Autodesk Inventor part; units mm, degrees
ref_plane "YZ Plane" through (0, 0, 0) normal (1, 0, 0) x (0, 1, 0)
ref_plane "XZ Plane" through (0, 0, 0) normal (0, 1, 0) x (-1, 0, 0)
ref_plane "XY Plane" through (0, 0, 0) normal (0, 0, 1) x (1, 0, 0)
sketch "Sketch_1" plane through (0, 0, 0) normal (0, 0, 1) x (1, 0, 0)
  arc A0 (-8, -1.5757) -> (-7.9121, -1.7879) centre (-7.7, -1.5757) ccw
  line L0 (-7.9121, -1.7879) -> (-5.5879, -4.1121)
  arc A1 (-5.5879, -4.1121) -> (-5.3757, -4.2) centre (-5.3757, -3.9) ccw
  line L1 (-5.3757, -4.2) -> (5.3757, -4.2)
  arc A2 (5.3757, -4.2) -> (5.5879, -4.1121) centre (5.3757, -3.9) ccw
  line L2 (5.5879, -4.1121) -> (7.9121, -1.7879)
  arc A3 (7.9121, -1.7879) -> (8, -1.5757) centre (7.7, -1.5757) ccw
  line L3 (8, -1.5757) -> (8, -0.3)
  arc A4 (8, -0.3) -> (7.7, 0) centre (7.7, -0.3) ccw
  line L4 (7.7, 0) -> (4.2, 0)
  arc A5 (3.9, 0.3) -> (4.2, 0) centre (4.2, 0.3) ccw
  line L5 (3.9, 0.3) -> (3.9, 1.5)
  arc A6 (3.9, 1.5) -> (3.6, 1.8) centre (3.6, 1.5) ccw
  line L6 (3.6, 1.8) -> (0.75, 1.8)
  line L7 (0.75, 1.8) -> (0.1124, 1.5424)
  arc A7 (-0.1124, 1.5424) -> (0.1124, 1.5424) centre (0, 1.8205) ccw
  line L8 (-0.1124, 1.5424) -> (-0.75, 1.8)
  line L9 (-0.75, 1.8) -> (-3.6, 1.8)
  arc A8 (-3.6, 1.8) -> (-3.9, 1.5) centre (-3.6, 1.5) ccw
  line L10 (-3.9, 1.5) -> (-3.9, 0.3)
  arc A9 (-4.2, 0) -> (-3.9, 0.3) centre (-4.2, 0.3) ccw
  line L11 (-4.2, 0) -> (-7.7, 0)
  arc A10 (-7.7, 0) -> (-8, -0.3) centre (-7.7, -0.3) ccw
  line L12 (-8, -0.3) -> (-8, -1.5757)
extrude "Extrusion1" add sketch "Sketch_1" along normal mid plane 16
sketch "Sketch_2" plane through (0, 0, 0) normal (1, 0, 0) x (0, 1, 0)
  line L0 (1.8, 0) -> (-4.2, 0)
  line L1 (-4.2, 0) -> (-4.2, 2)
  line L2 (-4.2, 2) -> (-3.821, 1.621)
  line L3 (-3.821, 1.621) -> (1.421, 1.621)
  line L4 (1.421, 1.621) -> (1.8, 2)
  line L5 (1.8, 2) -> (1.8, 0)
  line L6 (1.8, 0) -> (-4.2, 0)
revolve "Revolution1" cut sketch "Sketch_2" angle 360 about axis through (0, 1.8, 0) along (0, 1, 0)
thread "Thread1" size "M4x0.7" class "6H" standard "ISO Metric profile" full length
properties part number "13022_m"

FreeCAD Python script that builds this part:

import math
import FreeCAD as App
import Part
import Sketcher

V = App.Vector
Q = App.Units.Quantity

doc = App.newDocument("Part")
body = doc.addObject("PartDesign::Body", "Body")

# Sketch on XY plane
sketch1 = body.newObject("Sketcher::SketchObject", "Sketch")
sketch1.AttachmentSupport = (doc.getObject("XY_Plane"), [""])
sketch1.MapMode = "FlatFace"
sketch1.addGeometry(Part.LineSegment(V(-8, -0.3, 0), V(-8, -1.58, 0)), False)
sketch1.addGeometry(Part.ArcOfCircle(Part.Circle(V(-7.7, -1.58, 0), V(0, 0, 1), 0.3), math.radians(180), math.radians(225)), False)
sketch1.addGeometry(Part.LineSegment(V(-7.91, -1.79, 0), V(-5.59, -4.11, 0)), False)
sketch1.addGeometry(Part.ArcOfCircle(Part.Circle(V(-5.38, -3.9, 0), V(0, 0, 1), 0.3), math.radians(-135), math.radians(-90)), False)
sketch1.addGeometry(Part.LineSegment(V(-5.38, -4.2, 0), V(5.38, -4.2, 0)), False)
sketch1.addGeometry(Part.ArcOfCircle(Part.Circle(V(5.38, -3.9, 0), V(0, 0, 1), 0.3), math.radians(-90), math.radians(-45)), False)
sketch1.addGeometry(Part.LineSegment(V(5.59, -4.11, 0), V(7.91, -1.79, 0)), False)
sketch1.addGeometry(Part.ArcOfCircle(Part.Circle(V(7.7, -1.58, 0), V(0, 0, 1), 0.3), math.radians(-45), math.radians(0)), False)
sketch1.addGeometry(Part.LineSegment(V(8, -1.58, 0), V(8, -0.3, 0)), False)
sketch1.addGeometry(Part.ArcOfCircle(Part.Circle(V(7.7, -0.3, 0), V(0, 0, 1), 0.3), math.radians(0), math.radians(90)), False)
sketch1.addGeometry(Part.LineSegment(V(7.7, 0, 0), V(4.2, 0, 0)), False)
sketch1.addGeometry(Part.ArcOfCircle(Part.Circle(V(4.2, 0.3, 0), V(0, 0, 1), 0.3), math.radians(180), math.radians(270)), False)
sketch1.addGeometry(Part.LineSegment(V(3.9, 0.3, 0), V(3.9, 1.5, 0)), False)
sketch1.addGeometry(Part.ArcOfCircle(Part.Circle(V(3.6, 1.5, 0), V(0, 0, 1), 0.3), math.radians(0), math.radians(90)), False)
sketch1.addGeometry(Part.LineSegment(V(3.6, 1.8, 0), V(0.75, 1.8, 0)), False)
sketch1.addGeometry(Part.LineSegment(V(0.75, 1.8, 0), V(0.11, 1.54, 0)), False)
sketch1.addGeometry(Part.ArcOfCircle(Part.Circle(V(0, 1.82, 0), V(0, 0, 1), 0.3), math.radians(-112), math.radians(-68)), False)
sketch1.addGeometry(Part.LineSegment(V(-0.11, 1.54, 0), V(-0.75, 1.8, 0)), False)
sketch1.addGeometry(Part.LineSegment(V(-0.75, 1.8, 0), V(-3.6, 1.8, 0)), False)
sketch1.addGeometry(Part.ArcOfCircle(Part.Circle(V(-3.6, 1.5, 0), V(0, 0, 1), 0.3), math.radians(90), math.radians(180)), False)
sketch1.addGeometry(Part.LineSegment(V(-3.9, 1.5, 0), V(-3.9, 0.3, 0)), False)
sketch1.addGeometry(Part.ArcOfCircle(Part.Circle(V(-4.2, 0.3, 0), V(0, 0, 1), 0.3), math.radians(-90), math.radians(0)), False)
sketch1.addGeometry(Part.LineSegment(V(-4.2, 0, 0), V(-7.7, 0, 0)), False)
sketch1.addGeometry(Part.ArcOfCircle(Part.Circle(V(-7.7, -0.3, 0), V(0, 0, 1), 0.3), math.radians(90), math.radians(180)), False)
sketch1.addConstraint(Sketcher.Constraint("Tangent", 0, 2, 1, 1))
sketch1.addConstraint(Sketcher.Constraint("Tangent", 1, 2, 2, 1))
sketch1.addConstraint(Sketcher.Constraint("Tangent", 2, 2, 3, 1))
sketch1.addConstraint(Sketcher.Constraint("Tangent", 3, 2, 4, 1))
sketch1.addConstraint(Sketcher.Constraint("Tangent", 4, 2, 5, 1))
sketch1.addConstraint(Sketcher.Constraint("Tangent", 5, 2, 6, 1))
sketch1.addConstraint(Sketcher.Constraint("Tangent", 6, 2, 7, 1))
sketch1.addConstraint(Sketcher.Constraint("Tangent", 7, 2, 8, 1))
sketch1.addConstraint(Sketcher.Constraint("Tangent", 8, 2, 9, 1))
sketch1.addConstraint(Sketcher.Constraint("Tangent", 9, 2, 10, 1))
sketch1.addConstraint(Sketcher.Constraint("Tangent", 10, 2, 11, 2))
sketch1.addConstraint(Sketcher.Constraint("Tangent", 11, 1, 12, 1))
sketch1.addConstraint(Sketcher.Constraint("Tangent", 12, 2, 13, 1))
sketch1.addConstraint(Sketcher.Constraint("Tangent", 13, 2, 14, 1))
sketch1.addConstraint(Sketcher.Constraint("Coincident", 14, 2, 15, 1))
sketch1.addConstraint(Sketcher.Constraint("Tangent", 15, 2, 16, 2))
sketch1.addConstraint(Sketcher.Constraint("Tangent", 16, 1, 17, 1))
sketch1.addConstraint(Sketcher.Constraint("Coincident", 17, 2, 18, 1))
sketch1.addConstraint(Sketcher.Constraint("Tangent", 18, 2, 19, 1))
sketch1.addConstraint(Sketcher.Constraint("Tangent", 19, 2, 20, 1))
sketch1.addConstraint(Sketcher.Constraint("Tangent", 20, 2, 21, 2))
sketch1.addConstraint(Sketcher.Constraint("Tangent", 21, 1, 22, 1))
sketch1.addConstraint(Sketcher.Constraint("Tangent", 22, 2, 23, 1))
sketch1.addConstraint(Sketcher.Constraint("Tangent", 23, 2, 0, 1))
sketch1.addConstraint(Sketcher.Constraint("Vertical", 0))
sketch1.addConstraint(Sketcher.Constraint("Horizontal", 4))
sketch1.addConstraint(Sketcher.Constraint("Vertical", 8))
sketch1.addConstraint(Sketcher.Constraint("Horizontal", 10))
sketch1.addConstraint(Sketcher.Constraint("Vertical", 12))
sketch1.addConstraint(Sketcher.Constraint("Horizontal", 14))
sketch1.addConstraint(Sketcher.Constraint("Horizontal", 18))
sketch1.addConstraint(Sketcher.Constraint("Vertical", 20))
sketch1.addConstraint(Sketcher.Constraint("Horizontal", 22))
sketch1.addConstraint(Sketcher.Constraint("Equal", 1, 3))
sketch1.addConstraint(Sketcher.Constraint("Equal", 3, 5))
sketch1.addConstraint(Sketcher.Constraint("Equal", 5, 7))
sketch1.addConstraint(Sketcher.Constraint("Equal", 7, 9))
sketch1.addConstraint(Sketcher.Constraint("Equal", 9, 11))
sketch1.addConstraint(Sketcher.Constraint("Equal", 11, 13))
sketch1.addConstraint(Sketcher.Constraint("Equal", 13, 16))
sketch1.addConstraint(Sketcher.Constraint("Equal", 16, 19))
sketch1.addConstraint(Sketcher.Constraint("Equal", 19, 21))
sketch1.addConstraint(Sketcher.Constraint("Equal", 21, 23))
sketch1.addConstraint(Sketcher.Constraint("Symmetric", 10, 2, 21, 1, -1, 1))
sketch1.addConstraint(Sketcher.Constraint("Symmetric", 1, 3, 7, 3, -2))
sketch1.addConstraint(Sketcher.Constraint("Symmetric", 15, 2, 16, 1, -2))
sketch1.addConstraint(Sketcher.Constraint("PointOnObject", 9, 2, -1))
sketch1.addConstraint(Sketcher.Constraint("Perpendicular", 2, 6))
sketch1.addConstraint(Sketcher.Constraint("Horizontal", 13, 3, 19, 3))
sketch1.addConstraint(Sketcher.Constraint("Horizontal", 2, 2, 5, 2))
sketch1.addConstraint(Sketcher.Constraint("Radius", 1, Q("0.3 mm")))
sketch1.addConstraint(Sketcher.Constraint("Angle", 15, Q("-158.0006 deg")))
sketch1.addConstraint(Sketcher.Constraint("DistanceX", 10, 2, 10, 1, Q("3.5 mm")))
sketch1.addConstraint(Sketcher.Constraint("DistanceY", 12, 1, 12, 2, Q("1.2 mm")))
sketch1.addConstraint(Sketcher.Constraint("DistanceX", 0, 2, -1, 1, Q("8 mm")))
sketch1.addConstraint(Sketcher.Constraint("DistanceX", 14, 2, 14, 1, Q("2.85 mm")))
sketch1.addConstraint(Sketcher.Constraint("DistanceY", 3, 3, -1, 1, Q("3.9 mm")))
sketch1.addConstraint(Sketcher.Constraint("Distance", 2, Q("3.287 mm")))
pad1 = body.newObject("PartDesign::Pad", "Pad")
pad1.Profile = sketch1
pad1.Length = 16
pad1.Midplane = True

# Sketch on YZ plane
sketch2 = body.newObject("Sketcher::SketchObject", "Sketch001")
sketch2.AttachmentSupport = (doc.getObject("YZ_Plane"), [""])
sketch2.MapMode = "FlatFace"
sketch2.addGeometry(Part.LineSegment(V(-4.2, 0, 0), V(1.8, 0, 0)), False)
sketch2.addGeometry(Part.LineSegment(V(1.8, 0, 0), V(1.8, 2, 0)), False)
sketch2.addGeometry(Part.LineSegment(V(1.8, 2, 0), V(1.4, 1.6, 0)), False)
sketch2.addGeometry(Part.LineSegment(V(1.4, 1.6, 0), V(-3.8, 1.6, 0)), False)
sketch2.addGeometry(Part.LineSegment(V(-3.8, 1.6, 0), V(-4.2, 2, 0)), False)
sketch2.addGeometry(Part.LineSegment(V(-4.2, 2, 0), V(-4.2, 0, 0)), False)
sketch2.addConstraint(Sketcher.Constraint("Coincident", 0, 2, 1, 1))
sketch2.addConstraint(Sketcher.Constraint("Coincident", 1, 2, 2, 1))
sketch2.addConstraint(Sketcher.Constraint("Coincident", 2, 2, 3, 1))
sketch2.addConstraint(Sketcher.Constraint("Coincident", 3, 2, 4, 1))
sketch2.addConstraint(Sketcher.Constraint("Coincident", 4, 2, 5, 1))
sketch2.addConstraint(Sketcher.Constraint("Coincident", 5, 2, 0, 1))
sketch2.addConstraint(Sketcher.Constraint("Horizontal", 0))
sketch2.addConstraint(Sketcher.Constraint("Vertical", 1))
sketch2.addConstraint(Sketcher.Constraint("Horizontal", 3))
sketch2.addConstraint(Sketcher.Constraint("Vertical", 5))
sketch2.addConstraint(Sketcher.Constraint("PointOnObject", 0, 2, -1))
sketch2.addConstraint(Sketcher.Constraint("Perpendicular", 2, 4))
sketch2.addConstraint(Sketcher.Constraint("Horizontal", 1, 2, 4, 2))
sketch2.addConstraint(Sketcher.Constraint("Equal", 2, 4))
sketch2.addConstraint(Sketcher.Constraint("DistanceX", 0, 1, 0, 2, Q("6 mm")))
sketch2.addConstraint(Sketcher.Constraint("DistanceY", 1, 1, 1, 2, Q("2 mm")))
sketch2.addConstraint(Sketcher.Constraint("DistanceX", -1, 1, 0, 2, Q("1.8 mm")))
sketch2.addConstraint(Sketcher.Constraint("DistanceX", 3, 2, 3, 1, Q("5.242 mm")))
groove = body.newObject("PartDesign::Groove", "Groove")
groove.Profile = sketch2
groove.ReferenceAxis = (sketch2, ["H_Axis"])
groove.Angle = 360

doc.recompute()
